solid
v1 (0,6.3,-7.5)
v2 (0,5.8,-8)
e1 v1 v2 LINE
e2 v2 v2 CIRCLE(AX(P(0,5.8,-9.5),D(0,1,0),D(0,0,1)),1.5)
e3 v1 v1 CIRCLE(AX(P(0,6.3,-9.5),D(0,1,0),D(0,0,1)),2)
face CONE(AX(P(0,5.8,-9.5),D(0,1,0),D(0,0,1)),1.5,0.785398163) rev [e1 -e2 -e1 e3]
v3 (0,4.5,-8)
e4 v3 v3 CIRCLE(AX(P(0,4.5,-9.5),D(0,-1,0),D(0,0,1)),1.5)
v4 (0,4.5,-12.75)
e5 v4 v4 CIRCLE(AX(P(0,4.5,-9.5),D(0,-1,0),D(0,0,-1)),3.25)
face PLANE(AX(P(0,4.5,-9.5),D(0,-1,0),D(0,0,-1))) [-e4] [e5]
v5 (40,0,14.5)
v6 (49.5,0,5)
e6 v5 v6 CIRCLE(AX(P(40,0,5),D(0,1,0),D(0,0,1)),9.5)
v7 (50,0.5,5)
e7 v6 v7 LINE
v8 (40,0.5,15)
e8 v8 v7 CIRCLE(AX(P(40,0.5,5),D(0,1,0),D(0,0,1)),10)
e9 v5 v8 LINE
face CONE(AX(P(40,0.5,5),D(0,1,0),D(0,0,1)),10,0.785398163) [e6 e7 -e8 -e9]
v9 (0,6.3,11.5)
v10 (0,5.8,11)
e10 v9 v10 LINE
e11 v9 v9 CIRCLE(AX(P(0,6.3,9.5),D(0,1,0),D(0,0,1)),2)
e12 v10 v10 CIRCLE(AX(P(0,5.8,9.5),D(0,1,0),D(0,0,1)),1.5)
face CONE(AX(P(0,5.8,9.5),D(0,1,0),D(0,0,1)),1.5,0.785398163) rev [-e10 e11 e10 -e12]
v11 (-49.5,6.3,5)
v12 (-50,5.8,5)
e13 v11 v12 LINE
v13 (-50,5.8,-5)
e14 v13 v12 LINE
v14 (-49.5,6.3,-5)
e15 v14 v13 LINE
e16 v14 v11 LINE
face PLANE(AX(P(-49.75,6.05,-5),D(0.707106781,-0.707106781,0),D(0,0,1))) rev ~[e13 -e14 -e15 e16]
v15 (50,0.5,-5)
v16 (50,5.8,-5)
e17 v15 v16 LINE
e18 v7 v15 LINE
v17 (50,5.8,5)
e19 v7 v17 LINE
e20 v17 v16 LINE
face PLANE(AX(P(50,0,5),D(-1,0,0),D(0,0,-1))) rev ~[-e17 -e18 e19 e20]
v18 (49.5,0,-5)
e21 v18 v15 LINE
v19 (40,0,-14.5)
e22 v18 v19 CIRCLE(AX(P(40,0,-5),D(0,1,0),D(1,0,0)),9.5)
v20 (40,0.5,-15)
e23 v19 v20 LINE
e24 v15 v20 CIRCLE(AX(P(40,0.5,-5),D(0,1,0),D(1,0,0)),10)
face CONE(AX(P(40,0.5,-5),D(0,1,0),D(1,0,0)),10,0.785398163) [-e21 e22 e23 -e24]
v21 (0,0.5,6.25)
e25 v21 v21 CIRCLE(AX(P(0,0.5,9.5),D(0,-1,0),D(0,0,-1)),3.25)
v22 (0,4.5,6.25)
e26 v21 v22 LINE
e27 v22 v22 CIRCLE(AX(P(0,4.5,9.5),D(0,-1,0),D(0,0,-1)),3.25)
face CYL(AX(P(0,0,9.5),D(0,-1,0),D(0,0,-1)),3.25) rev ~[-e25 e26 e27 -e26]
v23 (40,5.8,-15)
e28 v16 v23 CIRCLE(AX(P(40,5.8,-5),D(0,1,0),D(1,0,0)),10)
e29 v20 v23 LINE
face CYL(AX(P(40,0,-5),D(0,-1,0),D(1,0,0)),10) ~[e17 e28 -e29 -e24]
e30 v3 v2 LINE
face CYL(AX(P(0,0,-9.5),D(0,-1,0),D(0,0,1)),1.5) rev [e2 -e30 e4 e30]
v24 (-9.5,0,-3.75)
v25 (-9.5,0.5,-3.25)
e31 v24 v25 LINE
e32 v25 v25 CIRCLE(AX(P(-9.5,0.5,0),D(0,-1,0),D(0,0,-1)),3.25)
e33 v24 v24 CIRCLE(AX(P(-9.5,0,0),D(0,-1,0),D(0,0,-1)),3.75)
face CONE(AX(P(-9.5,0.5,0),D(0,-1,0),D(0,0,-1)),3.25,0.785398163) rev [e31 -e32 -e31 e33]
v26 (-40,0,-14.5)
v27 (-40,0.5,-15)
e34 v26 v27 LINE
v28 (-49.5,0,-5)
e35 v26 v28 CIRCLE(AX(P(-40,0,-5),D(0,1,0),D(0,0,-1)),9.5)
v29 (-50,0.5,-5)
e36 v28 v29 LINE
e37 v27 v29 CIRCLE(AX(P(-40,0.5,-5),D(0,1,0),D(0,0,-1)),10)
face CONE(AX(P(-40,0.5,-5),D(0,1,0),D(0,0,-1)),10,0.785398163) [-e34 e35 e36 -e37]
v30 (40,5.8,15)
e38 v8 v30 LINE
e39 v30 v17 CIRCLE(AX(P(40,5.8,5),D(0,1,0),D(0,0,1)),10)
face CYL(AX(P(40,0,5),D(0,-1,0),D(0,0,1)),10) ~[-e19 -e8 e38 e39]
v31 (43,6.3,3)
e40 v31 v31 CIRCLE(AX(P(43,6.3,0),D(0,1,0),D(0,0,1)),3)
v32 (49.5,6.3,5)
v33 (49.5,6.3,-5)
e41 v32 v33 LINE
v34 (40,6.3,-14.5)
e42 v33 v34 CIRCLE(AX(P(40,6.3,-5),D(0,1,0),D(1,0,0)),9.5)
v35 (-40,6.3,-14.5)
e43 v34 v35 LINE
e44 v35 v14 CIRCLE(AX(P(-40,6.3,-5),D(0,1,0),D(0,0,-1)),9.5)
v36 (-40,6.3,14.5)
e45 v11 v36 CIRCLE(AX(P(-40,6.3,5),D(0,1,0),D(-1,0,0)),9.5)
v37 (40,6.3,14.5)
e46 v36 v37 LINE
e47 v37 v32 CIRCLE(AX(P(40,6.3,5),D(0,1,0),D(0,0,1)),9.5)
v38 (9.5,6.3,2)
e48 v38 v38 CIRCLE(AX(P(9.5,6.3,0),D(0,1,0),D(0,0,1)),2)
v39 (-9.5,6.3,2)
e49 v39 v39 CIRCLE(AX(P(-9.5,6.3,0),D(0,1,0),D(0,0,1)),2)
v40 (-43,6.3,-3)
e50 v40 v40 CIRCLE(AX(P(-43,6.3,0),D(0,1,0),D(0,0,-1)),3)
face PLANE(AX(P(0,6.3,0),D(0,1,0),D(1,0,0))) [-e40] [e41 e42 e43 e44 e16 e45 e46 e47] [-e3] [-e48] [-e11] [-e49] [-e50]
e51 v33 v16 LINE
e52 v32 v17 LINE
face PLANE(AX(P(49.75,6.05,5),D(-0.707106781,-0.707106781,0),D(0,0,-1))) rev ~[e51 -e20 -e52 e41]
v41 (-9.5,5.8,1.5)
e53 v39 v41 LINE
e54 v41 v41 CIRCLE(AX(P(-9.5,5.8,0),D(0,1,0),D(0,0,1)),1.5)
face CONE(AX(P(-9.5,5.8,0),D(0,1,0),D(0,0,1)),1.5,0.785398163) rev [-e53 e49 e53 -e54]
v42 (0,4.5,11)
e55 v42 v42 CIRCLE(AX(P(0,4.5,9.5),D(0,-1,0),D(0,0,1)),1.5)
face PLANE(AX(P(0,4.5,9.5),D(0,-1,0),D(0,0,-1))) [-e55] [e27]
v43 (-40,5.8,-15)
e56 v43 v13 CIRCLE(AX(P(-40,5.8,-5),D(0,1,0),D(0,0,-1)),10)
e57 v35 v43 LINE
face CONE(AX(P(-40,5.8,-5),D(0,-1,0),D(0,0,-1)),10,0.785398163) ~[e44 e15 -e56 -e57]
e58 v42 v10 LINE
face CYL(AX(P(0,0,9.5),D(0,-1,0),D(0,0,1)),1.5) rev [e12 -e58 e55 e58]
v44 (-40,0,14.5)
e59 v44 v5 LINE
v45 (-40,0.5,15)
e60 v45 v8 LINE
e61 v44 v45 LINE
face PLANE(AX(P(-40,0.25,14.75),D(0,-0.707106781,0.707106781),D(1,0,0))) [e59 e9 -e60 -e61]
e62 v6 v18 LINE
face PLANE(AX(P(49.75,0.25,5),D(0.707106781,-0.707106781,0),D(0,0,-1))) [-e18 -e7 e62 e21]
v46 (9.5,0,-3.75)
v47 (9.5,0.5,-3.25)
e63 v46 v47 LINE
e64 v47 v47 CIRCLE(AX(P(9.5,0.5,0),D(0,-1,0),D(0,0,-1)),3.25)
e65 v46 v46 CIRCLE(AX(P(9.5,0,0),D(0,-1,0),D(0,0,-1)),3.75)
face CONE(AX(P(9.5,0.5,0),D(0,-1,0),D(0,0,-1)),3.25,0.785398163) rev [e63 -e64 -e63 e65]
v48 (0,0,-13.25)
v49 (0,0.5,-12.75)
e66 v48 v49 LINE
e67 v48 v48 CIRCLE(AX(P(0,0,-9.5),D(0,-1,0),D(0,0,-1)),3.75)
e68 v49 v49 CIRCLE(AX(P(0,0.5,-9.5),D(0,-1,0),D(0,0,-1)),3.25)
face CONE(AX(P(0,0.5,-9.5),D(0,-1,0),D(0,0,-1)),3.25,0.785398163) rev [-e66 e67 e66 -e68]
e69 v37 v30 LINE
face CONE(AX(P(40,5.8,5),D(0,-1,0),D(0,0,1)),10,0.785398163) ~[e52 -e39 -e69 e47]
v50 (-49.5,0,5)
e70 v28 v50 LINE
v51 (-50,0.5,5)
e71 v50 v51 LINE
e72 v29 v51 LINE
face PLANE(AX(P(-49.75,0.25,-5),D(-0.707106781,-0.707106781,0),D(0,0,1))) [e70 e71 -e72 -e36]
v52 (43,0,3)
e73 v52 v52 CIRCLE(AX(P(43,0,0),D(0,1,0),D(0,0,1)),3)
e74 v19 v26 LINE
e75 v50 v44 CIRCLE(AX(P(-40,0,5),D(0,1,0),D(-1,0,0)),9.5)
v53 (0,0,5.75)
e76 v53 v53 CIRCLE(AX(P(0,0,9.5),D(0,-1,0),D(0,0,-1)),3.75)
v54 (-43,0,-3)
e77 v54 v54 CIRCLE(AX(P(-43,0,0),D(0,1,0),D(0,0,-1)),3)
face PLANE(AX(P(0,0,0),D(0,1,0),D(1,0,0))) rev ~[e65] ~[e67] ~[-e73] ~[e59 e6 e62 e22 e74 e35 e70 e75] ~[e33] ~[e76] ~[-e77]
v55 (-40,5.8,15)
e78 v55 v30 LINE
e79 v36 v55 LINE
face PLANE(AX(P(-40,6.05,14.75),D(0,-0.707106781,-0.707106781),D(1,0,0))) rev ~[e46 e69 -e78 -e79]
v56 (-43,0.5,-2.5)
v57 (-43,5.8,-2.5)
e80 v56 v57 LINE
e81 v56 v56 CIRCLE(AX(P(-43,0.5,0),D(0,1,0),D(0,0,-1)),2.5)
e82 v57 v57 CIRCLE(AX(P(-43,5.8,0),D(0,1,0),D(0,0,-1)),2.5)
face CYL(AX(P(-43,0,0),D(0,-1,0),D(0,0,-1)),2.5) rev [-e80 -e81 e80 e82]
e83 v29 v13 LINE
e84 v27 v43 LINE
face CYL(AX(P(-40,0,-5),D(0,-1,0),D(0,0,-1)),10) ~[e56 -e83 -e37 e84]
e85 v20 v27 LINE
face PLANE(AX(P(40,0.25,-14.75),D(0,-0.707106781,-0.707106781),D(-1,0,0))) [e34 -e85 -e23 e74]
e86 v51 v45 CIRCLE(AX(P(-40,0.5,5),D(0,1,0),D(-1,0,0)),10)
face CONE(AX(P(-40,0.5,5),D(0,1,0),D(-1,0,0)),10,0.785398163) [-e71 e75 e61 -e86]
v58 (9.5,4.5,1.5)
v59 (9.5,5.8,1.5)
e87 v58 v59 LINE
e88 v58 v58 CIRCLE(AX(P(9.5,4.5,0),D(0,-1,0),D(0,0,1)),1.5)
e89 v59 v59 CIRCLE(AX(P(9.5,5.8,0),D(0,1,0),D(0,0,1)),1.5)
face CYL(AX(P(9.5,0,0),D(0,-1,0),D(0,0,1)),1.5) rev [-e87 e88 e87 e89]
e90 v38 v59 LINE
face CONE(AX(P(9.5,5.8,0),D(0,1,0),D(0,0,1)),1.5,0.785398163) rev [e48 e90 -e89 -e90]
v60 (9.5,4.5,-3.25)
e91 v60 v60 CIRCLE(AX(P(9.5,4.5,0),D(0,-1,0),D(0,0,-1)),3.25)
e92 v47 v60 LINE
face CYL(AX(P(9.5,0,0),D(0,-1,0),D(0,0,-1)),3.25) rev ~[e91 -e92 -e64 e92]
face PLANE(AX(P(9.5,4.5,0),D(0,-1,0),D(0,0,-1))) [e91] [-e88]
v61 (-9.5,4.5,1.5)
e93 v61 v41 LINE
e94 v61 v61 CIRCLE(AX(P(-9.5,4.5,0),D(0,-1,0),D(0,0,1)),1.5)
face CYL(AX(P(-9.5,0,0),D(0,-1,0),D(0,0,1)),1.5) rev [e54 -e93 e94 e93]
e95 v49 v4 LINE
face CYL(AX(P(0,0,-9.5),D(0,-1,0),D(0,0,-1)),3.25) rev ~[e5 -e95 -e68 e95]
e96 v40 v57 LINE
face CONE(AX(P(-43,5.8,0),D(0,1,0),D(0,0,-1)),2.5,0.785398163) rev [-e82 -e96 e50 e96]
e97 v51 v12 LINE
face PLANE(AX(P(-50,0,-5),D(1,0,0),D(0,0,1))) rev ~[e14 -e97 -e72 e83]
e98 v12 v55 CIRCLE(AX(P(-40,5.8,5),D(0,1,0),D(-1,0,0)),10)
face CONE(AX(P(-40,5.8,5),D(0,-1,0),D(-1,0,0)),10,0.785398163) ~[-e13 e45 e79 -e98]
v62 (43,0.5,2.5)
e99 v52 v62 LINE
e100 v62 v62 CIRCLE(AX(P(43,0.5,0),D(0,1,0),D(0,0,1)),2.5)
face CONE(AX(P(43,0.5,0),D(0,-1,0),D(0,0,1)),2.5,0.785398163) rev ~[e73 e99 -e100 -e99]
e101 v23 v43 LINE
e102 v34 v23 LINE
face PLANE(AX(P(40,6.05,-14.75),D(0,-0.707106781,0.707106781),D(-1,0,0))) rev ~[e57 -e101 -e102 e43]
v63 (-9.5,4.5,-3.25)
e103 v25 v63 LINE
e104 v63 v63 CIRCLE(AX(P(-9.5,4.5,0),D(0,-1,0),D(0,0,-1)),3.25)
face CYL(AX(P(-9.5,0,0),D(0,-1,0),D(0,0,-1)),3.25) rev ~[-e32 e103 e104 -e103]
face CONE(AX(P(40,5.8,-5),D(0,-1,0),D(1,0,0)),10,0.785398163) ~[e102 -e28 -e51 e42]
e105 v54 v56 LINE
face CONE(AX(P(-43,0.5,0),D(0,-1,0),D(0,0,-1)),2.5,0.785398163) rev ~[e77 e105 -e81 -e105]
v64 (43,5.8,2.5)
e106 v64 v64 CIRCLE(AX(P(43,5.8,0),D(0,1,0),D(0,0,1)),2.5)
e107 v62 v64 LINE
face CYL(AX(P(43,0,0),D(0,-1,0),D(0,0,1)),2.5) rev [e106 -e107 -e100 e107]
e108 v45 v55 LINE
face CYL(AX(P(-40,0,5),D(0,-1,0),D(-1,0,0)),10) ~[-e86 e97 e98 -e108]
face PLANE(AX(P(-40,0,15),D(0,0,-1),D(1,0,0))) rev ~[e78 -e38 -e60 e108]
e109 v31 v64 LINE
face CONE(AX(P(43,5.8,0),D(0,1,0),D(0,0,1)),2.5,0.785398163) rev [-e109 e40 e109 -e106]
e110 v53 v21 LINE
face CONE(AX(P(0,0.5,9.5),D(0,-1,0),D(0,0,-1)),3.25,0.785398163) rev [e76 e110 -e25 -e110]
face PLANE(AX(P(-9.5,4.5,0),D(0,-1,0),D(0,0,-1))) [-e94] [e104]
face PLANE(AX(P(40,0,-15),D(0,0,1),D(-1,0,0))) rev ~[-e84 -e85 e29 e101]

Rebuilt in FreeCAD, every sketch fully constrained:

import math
import FreeCAD as App
import Part
import Sketcher
Q = App.Units.Quantity


def edges_at(feature, points):
    """Names of the edges that pass closest to the given points."""
    edges = feature.Shape.Edges
    near = lambda p: min(range(len(edges)), key=lambda i: edges[i].distToShape(Part.Vertex(*p))[0])
    return sorted({f"Edge{near(p) + 1}" for p in points})

doc = App.newDocument("Part")
params = doc.addObject("Spreadsheet::Sheet", "Params")
for row, (alias, value) in enumerate([
    ("sketch1_diameter", "3 mm"),
    ("sketch1_diameter2", "5 mm"),
    ("sketch1_radius", "10 mm"),
    ("sketch1_width", "80 mm"),
    ("sketch1_height", "10 mm"),
    ("pad1_length", "6.3 mm"),
    ("sketch2_diameter", "6.5 mm"),
    ("pocket1_length", "4.5 mm"),
    ("chamfer_size", "0.5 mm"),
], start=1):
    params.set(f"A{row}", alias)
    params.set(f"B{row}", "=" + value)
    params.setAlias(f"B{row}", alias)

body = doc.addObject("PartDesign::Body", "Body")

# Sketch on XZ plane
sketch1 = doc.addObject("Sketcher::SketchObject", "Sketch")
body.addObject(sketch1)
sketch1.AttachmentSupport = (doc.XZ_Plane, [""])
sketch1.MapMode = "FlatFace"
sketch1.addGeometry(Part.LineSegment(App.Vector(40, -15, 0), App.Vector(-40, -15, 0)), False)
sketch1.addGeometry(Part.ArcOfCircle(Part.Circle(App.Vector(-40, -5, 0), App.Vector(0, 0, 1), 10), math.radians(180), math.radians(270)), False)
sketch1.addGeometry(Part.LineSegment(App.Vector(-50, -5, 0), App.Vector(-50, 5, 0)), False)
sketch1.addGeometry(Part.ArcOfCircle(Part.Circle(App.Vector(-40, 5, 0), App.Vector(0, 0, 1), 10), math.radians(90), math.radians(180)), False)
sketch1.addGeometry(Part.LineSegment(App.Vector(-40, 15, 0), App.Vector(40, 15, 0)), False)
sketch1.addGeometry(Part.ArcOfCircle(Part.Circle(App.Vector(40, 5, 0), App.Vector(0, 0, 1), 10), math.radians(0), math.radians(90)), False)
sketch1.addGeometry(Part.LineSegment(App.Vector(50, 5, 0), App.Vector(50, -5, 0)), False)
sketch1.addGeometry(Part.ArcOfCircle(Part.Circle(App.Vector(40, -5, 0), App.Vector(0, 0, 1), 10), math.radians(-90), math.radians(0)), False)
sketch1.addGeometry(Part.Circle(App.Vector(0, 9.5, 0), App.Vector(0, 0, 1), 1.5), False)
sketch1.addGeometry(Part.Circle(App.Vector(-43, 0, 0), App.Vector(0, 0, 1), 2.5), False)
sketch1.addGeometry(Part.Circle(App.Vector(-9.5, 0, 0), App.Vector(0, 0, 1), 1.5), False)
sketch1.addGeometry(Part.Circle(App.Vector(9.5, 0, 0), App.Vector(0, 0, 1), 1.5), False)
sketch1.addGeometry(Part.Circle(App.Vector(43, 0, 0), App.Vector(0, 0, 1), 2.5), False)
sketch1.addGeometry(Part.Circle(App.Vector(0, -9.5, 0), App.Vector(0, 0, 1), 1.5), False)
sketch1.addConstraint(Sketcher.Constraint("Tangent", 0, 2, 1, 2))
sketch1.addConstraint(Sketcher.Constraint("Tangent", 1, 1, 2, 1))
sketch1.addConstraint(Sketcher.Constraint("Tangent", 2, 2, 3, 2))
sketch1.addConstraint(Sketcher.Constraint("Tangent", 3, 1, 4, 1))
sketch1.addConstraint(Sketcher.Constraint("Tangent", 4, 2, 5, 2))
sketch1.addConstraint(Sketcher.Constraint("Tangent", 5, 1, 6, 1))
sketch1.addConstraint(Sketcher.Constraint("Tangent", 6, 2, 7, 2))
sketch1.addConstraint(Sketcher.Constraint("Tangent", 7, 1, 0, 1))
sketch1.addConstraint(Sketcher.Constraint("Horizontal", 0))
sketch1.addConstraint(Sketcher.Constraint("Vertical", 2))
sketch1.addConstraint(Sketcher.Constraint("Horizontal", 4))
sketch1.addConstraint(Sketcher.Constraint("Vertical", 6))
sketch1.addConstraint(Sketcher.Constraint("Equal", 1, 3))
sketch1.addConstraint(Sketcher.Constraint("Equal", 3, 5))
sketch1.addConstraint(Sketcher.Constraint("Equal", 5, 7))
sketch1.addConstraint(Sketcher.Constraint("Equal", 8, 10))
sketch1.addConstraint(Sketcher.Constraint("Equal", 10, 11))
sketch1.addConstraint(Sketcher.Constraint("Equal", 9, 12))
sketch1.addConstraint(Sketcher.Constraint("Equal", 11, 13))
sketch1.addConstraint(Sketcher.Constraint("Symmetric", 1, 3, 5, 3, -1, 1))
sketch1.addConstraint(Sketcher.Constraint("Symmetric", 10, 3, 11, 3, -1, 1))
sketch1.addConstraint(Sketcher.Constraint("Symmetric", 9, 3, 12, 3, -1, 1))
sketch1.addConstraint(Sketcher.Constraint("Symmetric", 8, 3, 13, 3, -1, 1))
sketch1.addConstraint(Sketcher.Constraint("PointOnObject", 8, 3, -2))
sketch1.addConstraint(Sketcher.Constraint("PointOnObject", 9, 3, -1))
sketch1.addConstraint(Sketcher.Constraint("PointOnObject", 10, 3, -1))
sketch1.addConstraint(Sketcher.Constraint("Diameter", 8, Q("3 mm")))
sketch1.addConstraint(Sketcher.Constraint("Diameter", 9, Q("5 mm")))
sketch1.addConstraint(Sketcher.Constraint("Radius", 1, Q("10 mm")))
sketch1.addConstraint(Sketcher.Constraint("DistanceX", 0, 2, 0, 1, Q("80 mm")))
sketch1.addConstraint(Sketcher.Constraint("DistanceY", 2, 1, 2, 2, Q("10 mm")))
sketch1.addConstraint(Sketcher.Constraint("DistanceX", 9, 3, -1, 1, Q("43 mm")))
sketch1.addConstraint(Sketcher.Constraint("DistanceX", 10, 3, 11, 3, Q("19 mm")))
sketch1.addConstraint(Sketcher.Constraint("DistanceY", 13, 3, 8, 3, Q("19 mm")))
sketch1.setExpression("Constraints[26]", "Params.sketch1_diameter")
sketch1.setExpression("Constraints[27]", "Params.sketch1_diameter2")
sketch1.setExpression("Constraints[28]", "Params.sketch1_radius")
sketch1.setExpression("Constraints[29]", "Params.sketch1_width")
sketch1.setExpression("Constraints[30]", "Params.sketch1_height")
pad1 = doc.addObject("PartDesign::Pad", "Pad")
body.addObject(pad1)
pad1.Profile = sketch1
pad1.setExpression("Length", "Params.pad1_length")
pad1.Reversed = True

# Sketch on XZ plane
sketch2 = doc.addObject("Sketcher::SketchObject", "Sketch001")
body.addObject(sketch2)
sketch2.AttachmentSupport = (doc.XZ_Plane, [""])
sketch2.MapMode = "FlatFace"
sketch2.addGeometry(Part.Circle(App.Vector(0, 9.5, 0), App.Vector(0, 0, 1), 3.2), False)
sketch2.addGeometry(Part.Circle(App.Vector(9.5, 0, 0), App.Vector(0, 0, 1), 3.2), False)
sketch2.addGeometry(Part.Circle(App.Vector(0, -9.5, 0), App.Vector(0, 0, 1), 3.2), False)
sketch2.addGeometry(Part.Circle(App.Vector(-9.5, 0, 0), App.Vector(0, 0, 1), 3.2), False)
sketch2.addConstraint(Sketcher.Constraint("Equal", 0, 1))
sketch2.addConstraint(Sketcher.Constraint("Equal", 1, 2))
sketch2.addConstraint(Sketcher.Constraint("Equal", 2, 3))
sketch2.addConstraint(Sketcher.Constraint("Symmetric", 0, 3, 2, 3, -1, 1))
sketch2.addConstraint(Sketcher.Constraint("Symmetric", 1, 3, 3, 3, -1, 1))
sketch2.addConstraint(Sketcher.Constraint("PointOnObject", 0, 3, -2))
sketch2.addConstraint(Sketcher.Constraint("PointOnObject", 1, 3, -1))
sketch2.addConstraint(Sketcher.Constraint("Diameter", 0, Q("6.5 mm")))
sketch2.addConstraint(Sketcher.Constraint("DistanceY", 2, 3, 0, 3, Q("19 mm")))
sketch2.addConstraint(Sketcher.Constraint("DistanceX", 3, 3, 1, 3, Q("19 mm")))
sketch2.setExpression("Constraints[7]", "Params.sketch2_diameter")
pocket1 = doc.addObject("PartDesign::Pocket", "Pocket")
body.addObject(pocket1)
pocket1.Profile = sketch2
pocket1.setExpression("Length", "Params.pocket1_length")
doc.recompute()

chamfer = doc.addObject("PartDesign::Chamfer", "Chamfer")
body.addObject(chamfer)
chamfer.Base = (pocket1, edges_at(pocket1, [
    (0, 0, 15),
    (-47.071, 0, 12.071),
    (-50, 0, 0),
    (-47.071, 0, -12.071),
    (-47.071, 6.3, 12.071),
    (0, 6.3, 15),
    (47.071, 6.3, 12.071),
    (43, 0, -2.5),
    (43, 6.3, -2.5),
    (50, 6.3, 0),
    (-43, 0, 2.5),
    (-43, 6.3, 2.5),
    (47.071, 6.3, -12.071),
    (0, 6.3, 8),
    (0, 6.3, -15),
    (-9.5, 6.3, -1.5),
    (0, 6.3, -11),
    (9.5, 6.3, -1.5),
    (-47.071, 6.3, -12.071),
    (0, 0, 12.75),
    (9.5, 0, 3.25),
    (0, 0, -6.25),
    (-9.5, 0, 3.25),
    (0, 0, -15),
    (-50, 6.3, 0),
    (47.071, 0, -12.071),
    (50, 0, 0),
    (47.071, 0, 12.071),
]))
chamfer.setExpression("Size", "Params.chamfer_size")

doc.recompute()
